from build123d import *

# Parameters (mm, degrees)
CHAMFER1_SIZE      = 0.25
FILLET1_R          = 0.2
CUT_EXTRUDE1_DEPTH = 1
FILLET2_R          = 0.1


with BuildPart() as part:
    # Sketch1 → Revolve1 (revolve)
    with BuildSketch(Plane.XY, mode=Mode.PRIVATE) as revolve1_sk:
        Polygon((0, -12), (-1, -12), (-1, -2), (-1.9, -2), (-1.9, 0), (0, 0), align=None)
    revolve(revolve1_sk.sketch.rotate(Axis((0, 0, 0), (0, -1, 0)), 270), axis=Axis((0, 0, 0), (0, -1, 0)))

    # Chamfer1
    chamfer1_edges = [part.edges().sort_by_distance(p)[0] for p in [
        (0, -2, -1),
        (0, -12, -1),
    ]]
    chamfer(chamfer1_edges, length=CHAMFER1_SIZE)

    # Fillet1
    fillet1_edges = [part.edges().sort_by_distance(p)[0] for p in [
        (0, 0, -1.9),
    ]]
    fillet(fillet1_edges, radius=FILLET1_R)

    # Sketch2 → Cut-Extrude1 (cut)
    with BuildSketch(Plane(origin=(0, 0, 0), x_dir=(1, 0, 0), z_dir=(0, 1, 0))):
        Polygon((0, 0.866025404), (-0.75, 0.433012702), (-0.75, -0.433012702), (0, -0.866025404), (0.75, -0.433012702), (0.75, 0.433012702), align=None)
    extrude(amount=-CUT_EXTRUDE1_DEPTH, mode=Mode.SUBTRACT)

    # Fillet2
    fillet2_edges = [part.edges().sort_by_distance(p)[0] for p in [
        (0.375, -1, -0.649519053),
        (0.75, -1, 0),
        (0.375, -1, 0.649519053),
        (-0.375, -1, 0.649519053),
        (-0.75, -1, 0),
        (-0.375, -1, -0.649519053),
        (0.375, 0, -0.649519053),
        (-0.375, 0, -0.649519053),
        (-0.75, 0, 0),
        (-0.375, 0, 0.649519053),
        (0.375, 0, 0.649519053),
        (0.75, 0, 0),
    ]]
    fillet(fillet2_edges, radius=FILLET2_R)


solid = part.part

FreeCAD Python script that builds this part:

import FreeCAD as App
import Part
import Sketcher

V = App.Vector
Q = App.Units.Quantity


def edges_at(feature, points):
    """Names of the edges that pass closest to the given points."""
    edges = feature.Shape.Edges
    near = lambda p: min(range(len(edges)), key=lambda i: edges[i].distToShape(Part.Vertex(*p))[0])
    return sorted({f"Edge{near(p) + 1}" for p in points})


def add_polygon(sketch, points):
    """Adds a closed chain of lines whose ends are joined by coincident constraints."""
    first, n = sketch.GeometryCount, len(points)
    for a, b in zip(points, points[1:] + points[:1]):
        sketch.addGeometry(Part.LineSegment(App.Vector(*a, 0), App.Vector(*b, 0)), False)
    for i in range(n):
        sketch.addConstraint(Sketcher.Constraint("Coincident", first + i, 2, first + (i + 1) % n, 1))

doc = App.newDocument("Part")
body = doc.addObject("PartDesign::Body", "Body")

sketch1 = body.newObject("Sketcher::SketchObject", "Sketch")
sketch1.AttachmentSupport = (doc.getObject("XY_Plane"), [""])
sketch1.MapMode = "FlatFace"
add_polygon(sketch1, [(-1, -12), (0, -12), (0, 0), (-1.9, 0), (-1.9, -2), (-1, -2)])
sketch1.addConstraint(Sketcher.Constraint("Horizontal", 0))
sketch1.addConstraint(Sketcher.Constraint("Vertical", 1))
sketch1.addConstraint(Sketcher.Constraint("Horizontal", 2))
sketch1.addConstraint(Sketcher.Constraint("Vertical", 3))
sketch1.addConstraint(Sketcher.Constraint("Horizontal", 4))
sketch1.addConstraint(Sketcher.Constraint("Vertical", 5))
sketch1.addConstraint(Sketcher.Constraint("Coincident", 1, 2, -1, 1))
sketch1.addConstraint(Sketcher.Constraint("DistanceX", 0, 1, 0, 2, Q("1 mm")))
sketch1.addConstraint(Sketcher.Constraint("DistanceY", 1, 1, 1, 2, Q("12 mm")))
sketch1.addConstraint(Sketcher.Constraint("DistanceY", 3, 2, 3, 1, Q("2 mm")))
sketch1.addConstraint(Sketcher.Constraint("DistanceX", 2, 2, 2, 1, Q("1.9 mm")))
revolution = body.newObject("PartDesign::Revolution", "Revolution")
revolution.Profile = sketch1
revolution.ReferenceAxis = (sketch1, ["V_Axis"])
revolution.Angle = 360
doc.recompute()

chamfer = body.newObject("PartDesign::Chamfer", "Chamfer")
chamfer.Base = (revolution, edges_at(revolution, [(0, -2, -1), (0, -12, -1)]))
chamfer.Size = 0.25
doc.recompute()

fillet = body.newObject("PartDesign::Fillet", "Fillet")
fillet.Base = (chamfer, edges_at(chamfer, [(0, 0, -1.9)]))
fillet.Radius = 0.2

sketch2 = body.newObject("Sketcher::SketchObject", "Sketch001")
sketch2.AttachmentSupport = (doc.getObject("XZ_Plane"), [""])
sketch2.MapMode = "FlatFace"
add_polygon(sketch2, [(0, -0.866025), (-0.75, -0.433013), (-0.75, 0.433013), (0, 0.866025), (0.75, 0.433013), (0.75, -0.433013)])
sketch2.addConstraint(Sketcher.Constraint("Vertical", 1))
sketch2.addConstraint(Sketcher.Constraint("Vertical", 4))
sketch2.addConstraint(Sketcher.Constraint("Symmetric", 0, 2, 3, 2, -1, 1))
sketch2.addConstraint(Sketcher.Constraint("Symmetric", 2, 2, 5, 2, -1, 1))
sketch2.addConstraint(Sketcher.Constraint("PointOnObject", 2, 2, -2))
sketch2.addConstraint(Sketcher.Constraint("Parallel", 2, 5))
sketch2.addConstraint(Sketcher.Constraint("Horizontal", 1, 2, 3, 2))
sketch2.addConstraint(Sketcher.Constraint("Angle", 0, Q("150 deg")))
sketch2.addConstraint(Sketcher.Constraint("DistanceX", 1, 2, 3, 2, Q("1.5 mm")))
sketch2.addConstraint(Sketcher.Constraint("DistanceY", 1, 1, 1, 2, Q("0.866025 mm")))
pocket1 = body.newObject("PartDesign::Pocket", "Pocket")
pocket1.Profile = sketch2
pocket1.Length = 1
pocket1.Reversed = True
doc.recompute()

fillet2 = body.newObject("PartDesign::Fillet", "Fillet001")
fillet2.Base = (pocket1, edges_at(pocket1, [
    (0.375, -1, -0.65),
    (0.75, -1, 0),
    (0.375, -1, 0.65),
    (-0.375, -1, 0.65),
    (-0.75, -1, 0),
    (-0.375, -1, -0.65),
    (0.375, 0, -0.65),
    (-0.375, 0, -0.65),
    (-0.75, 0, 0),
    (-0.375, 0, 0.65),
    (0.375, 0, 0.65),
    (0.75, 0, 0),
]))
fillet2.Radius = 0.1

doc.recompute()
